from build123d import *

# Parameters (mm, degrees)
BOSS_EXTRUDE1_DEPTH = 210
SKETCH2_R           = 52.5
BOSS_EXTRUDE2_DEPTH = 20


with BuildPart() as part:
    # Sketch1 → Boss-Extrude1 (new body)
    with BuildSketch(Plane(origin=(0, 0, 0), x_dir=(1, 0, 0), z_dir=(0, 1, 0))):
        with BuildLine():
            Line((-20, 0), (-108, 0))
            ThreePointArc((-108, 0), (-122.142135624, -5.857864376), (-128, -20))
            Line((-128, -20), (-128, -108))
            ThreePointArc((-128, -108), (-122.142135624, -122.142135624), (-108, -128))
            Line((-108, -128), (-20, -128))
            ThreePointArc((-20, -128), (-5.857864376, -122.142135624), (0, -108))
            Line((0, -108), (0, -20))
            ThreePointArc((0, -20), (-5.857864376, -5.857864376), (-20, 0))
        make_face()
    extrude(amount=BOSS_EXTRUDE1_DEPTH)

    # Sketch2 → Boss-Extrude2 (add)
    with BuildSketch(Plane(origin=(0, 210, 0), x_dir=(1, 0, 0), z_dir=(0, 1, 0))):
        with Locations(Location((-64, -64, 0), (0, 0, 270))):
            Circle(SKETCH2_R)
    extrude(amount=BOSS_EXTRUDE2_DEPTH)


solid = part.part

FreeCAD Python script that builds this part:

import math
import FreeCAD as App
import Part
import Sketcher

V = App.Vector

doc = App.newDocument("Part")
body = doc.addObject("PartDesign::Body", "Body")

# Sketch on XZ plane
sketch1 = body.newObject("Sketcher::SketchObject", "Sketch")
sketch1.AttachmentSupport = (doc.getObject("XZ_Plane"), [""])
sketch1.MapMode = "FlatFace"
sketch1.addGeometry(Part.LineSegment(V(-20, 0, 0), V(-108, 0, 0)), False)
sketch1.addGeometry(Part.ArcOfCircle(Part.Circle(V(-108, 20, 0), V(0, 0, 1), 20), math.radians(180), math.radians(270)), False)
sketch1.addGeometry(Part.LineSegment(V(-128, 20, 0), V(-128, 108, 0)), False)
sketch1.addGeometry(Part.ArcOfCircle(Part.Circle(V(-108, 108, 0), V(0, 0, 1), 20), math.radians(90), math.radians(180)), False)
sketch1.addGeometry(Part.LineSegment(V(-108, 128, 0), V(-20, 128, 0)), False)
sketch1.addGeometry(Part.ArcOfCircle(Part.Circle(V(-20, 108, 0), V(0, 0, 1), 20), math.radians(0), math.radians(90)), False)
sketch1.addGeometry(Part.LineSegment(V(0, 108, 0), V(0, 20, 0)), False)
sketch1.addGeometry(Part.ArcOfCircle(Part.Circle(V(-20, 20, 0), V(0, 0, 1), 20), math.radians(-90), math.radians(0)), False)
sketch1.addConstraint(Sketcher.Constraint("Tangent", 0, 2, 1, 2))
sketch1.addConstraint(Sketcher.Constraint("Tangent", 1, 1, 2, 1))
sketch1.addConstraint(Sketcher.Constraint("Tangent", 2, 2, 3, 2))
sketch1.addConstraint(Sketcher.Constraint("Tangent", 3, 1, 4, 1))
sketch1.addConstraint(Sketcher.Constraint("Tangent", 4, 2, 5, 2))
sketch1.addConstraint(Sketcher.Constraint("Tangent", 5, 1, 6, 1))
sketch1.addConstraint(Sketcher.Constraint("Tangent", 6, 2, 7, 2))
sketch1.addConstraint(Sketcher.Constraint("Tangent", 7, 1, 0, 1))
sketch1.addConstraint(Sketcher.Constraint("Horizontal", 0))
sketch1.addConstraint(Sketcher.Constraint("Vertical", 2))
sketch1.addConstraint(Sketcher.Constraint("Horizontal", 4))
sketch1.addConstraint(Sketcher.Constraint("Vertical", 6))
sketch1.addConstraint(Sketcher.Constraint("Equal", 1, 3))
sketch1.addConstraint(Sketcher.Constraint("Equal", 3, 5))
sketch1.addConstraint(Sketcher.Constraint("Equal", 5, 7))
sketch1.addConstraint(Sketcher.Constraint("PointOnObject", 0, 2, -1))
sketch1.addConstraint(Sketcher.Constraint("PointOnObject", 5, 1, -2))
sketch1.addConstraint(Sketcher.Constraint("Equal", 4, 2))
sketch1.addConstraint(Sketcher.Constraint("Radius", 1, 20.0))
sketch1.addConstraint(Sketcher.Constraint("DistanceX", 0, 2, 0, 1, 88.0))
pad1 = body.newObject("PartDesign::Pad", "Pad")
pad1.Profile = sketch1
pad1.Length = 210
pad1.Reversed = True

# Sketch on XZ plane
sketch2 = body.newObject("Sketcher::SketchObject", "Sketch001")
sketch2.AttachmentSupport = (doc.getObject("XZ_Plane"), [""])
sketch2.MapMode = "FlatFace"
sketch2.AttachmentOffset = App.Placement(V(0, 0, -210), App.Rotation())
sketch2.addGeometry(Part.Circle(V(-64, 64, 0), V(0, 0, 1), 52), False)
sketch2.addConstraint(Sketcher.Constraint("Diameter", 0, 105.0))
sketch2.addConstraint(Sketcher.Constraint("DistanceX", 0, 3, -1, 1, 64.0))
sketch2.addConstraint(Sketcher.Constraint("DistanceY", -1, 1, 0, 3, 64.0))
pad2 = body.newObject("PartDesign::Pad", "Pad001")
pad2.Profile = sketch2
pad2.Length = 20
pad2.Reversed = True

doc.recompute()
